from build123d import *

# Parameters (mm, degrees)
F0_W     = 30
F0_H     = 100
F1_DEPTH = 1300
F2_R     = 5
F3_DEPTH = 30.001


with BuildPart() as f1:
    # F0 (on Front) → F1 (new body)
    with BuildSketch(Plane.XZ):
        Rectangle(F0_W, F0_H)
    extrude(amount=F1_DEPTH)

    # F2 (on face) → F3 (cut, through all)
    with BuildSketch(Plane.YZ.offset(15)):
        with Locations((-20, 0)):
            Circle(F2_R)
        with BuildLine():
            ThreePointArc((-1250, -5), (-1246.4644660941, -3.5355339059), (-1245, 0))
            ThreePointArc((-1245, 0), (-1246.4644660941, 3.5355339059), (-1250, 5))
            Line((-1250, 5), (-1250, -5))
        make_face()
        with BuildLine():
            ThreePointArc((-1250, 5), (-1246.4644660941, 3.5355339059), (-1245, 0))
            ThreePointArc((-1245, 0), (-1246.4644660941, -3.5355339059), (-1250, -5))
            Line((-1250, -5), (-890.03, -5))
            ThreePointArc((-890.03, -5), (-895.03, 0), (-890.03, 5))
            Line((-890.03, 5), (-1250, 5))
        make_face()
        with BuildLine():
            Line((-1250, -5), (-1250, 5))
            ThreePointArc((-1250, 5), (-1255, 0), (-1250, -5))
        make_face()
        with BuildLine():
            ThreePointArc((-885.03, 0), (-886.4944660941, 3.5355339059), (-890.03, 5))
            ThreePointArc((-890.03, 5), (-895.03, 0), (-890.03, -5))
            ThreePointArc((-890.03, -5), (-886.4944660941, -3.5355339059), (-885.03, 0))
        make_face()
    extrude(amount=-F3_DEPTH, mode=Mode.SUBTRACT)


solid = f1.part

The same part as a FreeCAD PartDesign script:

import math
import FreeCAD as App
import Part
import Sketcher

doc = App.newDocument("Part")
body = doc.addObject("PartDesign::Body", "Body")

# Sketch on XZ plane
sketch1 = body.newObject("Sketcher::SketchObject", "Sketch")
sketch1.AttachmentSupport = (doc.getObject("XZ_Plane"), [""])
sketch1.MapMode = "FlatFace"
sketch1.addGeometry([
    Part.LineSegment(App.Vector(-15, 50, 0), App.Vector(-15, -50, 0)),
    Part.LineSegment(App.Vector(-15, -50, 0), App.Vector(15, -50, 0)),
    Part.LineSegment(App.Vector(15, -50, 0), App.Vector(15, 50, 0)),
    Part.LineSegment(App.Vector(15, 50, 0), App.Vector(-15, 50, 0)),
], False)
sketch1.addConstraint([
    Sketcher.Constraint("Coincident", 0, 2, 1, 1),
    Sketcher.Constraint("Coincident", 1, 2, 2, 1),
    Sketcher.Constraint("Coincident", 2, 2, 3, 1),
    Sketcher.Constraint("Coincident", 3, 2, 0, 1),
    Sketcher.Constraint("Vertical", 0),
    Sketcher.Constraint("Horizontal", 1),
    Sketcher.Constraint("Vertical", 2),
    Sketcher.Constraint("Horizontal", 3),
    Sketcher.Constraint("Symmetric", 0, 2, 2, 2, -1, 1),
    Sketcher.Constraint("DistanceX", 1, 1, 1, 2, 30.0),
    Sketcher.Constraint("DistanceY", 0, 2, 0, 1, 100.0),
])
pad1 = body.newObject("PartDesign::Pad", "Pad")
pad1.Profile = sketch1
pad1.Length = 1300

# Sketch on YZ plane
sketch2 = body.newObject("Sketcher::SketchObject", "Sketch001")
sketch2.AttachmentSupport = (doc.getObject("YZ_Plane"), [""])
sketch2.MapMode = "FlatFace"
sketch2.AttachmentOffset = App.Placement(App.Vector(0, 0, 15), App.Rotation())
sketch2.addGeometry([
    Part.Circle(App.Vector(-20, 0, 0), App.Vector(0, 0, 1), 5),  # 0
    Part.LineSegment(App.Vector(-1250, -5, 0), App.Vector(-890.03, -5, 0)),  # 1
    Part.ArcOfCircle(Part.Circle(App.Vector(-890.03, 0, 0), App.Vector(0, 0, 1), 5), math.radians(-90), math.radians(0)),  # 2
    Part.ArcOfCircle(Part.Circle(App.Vector(-890.03, 0, 0), App.Vector(0, 0, 1), 5), math.radians(0), math.radians(90)),  # 3
    Part.LineSegment(App.Vector(-890.03, 5, 0), App.Vector(-1250, 5, 0)),  # 4
    Part.ArcOfCircle(Part.Circle(App.Vector(-1250, 0, 0), App.Vector(0, 0, 1), 5), math.radians(90), math.radians(270)),  # 5
], False)
sketch2.addConstraint([
    Sketcher.Constraint("Tangent", 1, 2, 2, 1),
    Sketcher.Constraint("Tangent", 2, 2, 3, 1),
    Sketcher.Constraint("Tangent", 3, 2, 4, 1),
    Sketcher.Constraint("Tangent", 4, 2, 5, 1),
    Sketcher.Constraint("Tangent", 5, 2, 1, 1),
    Sketcher.Constraint("Horizontal", 1),
    Sketcher.Constraint("Horizontal", 4),
    Sketcher.Constraint("Equal", 0, 2),
    Sketcher.Constraint("Equal", 2, 3),
    Sketcher.Constraint("PointOnObject", 0, 3, -1),
    Sketcher.Constraint("PointOnObject", 2, 3, -1),
    Sketcher.Constraint("PointOnObject", 2, 2, -1),
    Sketcher.Constraint("Diameter", 0, 10.0),
    Sketcher.Constraint("DistanceX", 0, 3, -1, 1, 20.0),
    Sketcher.Constraint("DistanceX", 5, 3, -1, 1, 1250.0),
    Sketcher.Constraint("DistanceX", 1, 1, 1, 2, 359.97),
])
pocket1 = body.newObject("PartDesign::Pocket", "Pocket")
pocket1.Profile = sketch2
pocket1.Type = "ThroughAll"

doc.recompute()
